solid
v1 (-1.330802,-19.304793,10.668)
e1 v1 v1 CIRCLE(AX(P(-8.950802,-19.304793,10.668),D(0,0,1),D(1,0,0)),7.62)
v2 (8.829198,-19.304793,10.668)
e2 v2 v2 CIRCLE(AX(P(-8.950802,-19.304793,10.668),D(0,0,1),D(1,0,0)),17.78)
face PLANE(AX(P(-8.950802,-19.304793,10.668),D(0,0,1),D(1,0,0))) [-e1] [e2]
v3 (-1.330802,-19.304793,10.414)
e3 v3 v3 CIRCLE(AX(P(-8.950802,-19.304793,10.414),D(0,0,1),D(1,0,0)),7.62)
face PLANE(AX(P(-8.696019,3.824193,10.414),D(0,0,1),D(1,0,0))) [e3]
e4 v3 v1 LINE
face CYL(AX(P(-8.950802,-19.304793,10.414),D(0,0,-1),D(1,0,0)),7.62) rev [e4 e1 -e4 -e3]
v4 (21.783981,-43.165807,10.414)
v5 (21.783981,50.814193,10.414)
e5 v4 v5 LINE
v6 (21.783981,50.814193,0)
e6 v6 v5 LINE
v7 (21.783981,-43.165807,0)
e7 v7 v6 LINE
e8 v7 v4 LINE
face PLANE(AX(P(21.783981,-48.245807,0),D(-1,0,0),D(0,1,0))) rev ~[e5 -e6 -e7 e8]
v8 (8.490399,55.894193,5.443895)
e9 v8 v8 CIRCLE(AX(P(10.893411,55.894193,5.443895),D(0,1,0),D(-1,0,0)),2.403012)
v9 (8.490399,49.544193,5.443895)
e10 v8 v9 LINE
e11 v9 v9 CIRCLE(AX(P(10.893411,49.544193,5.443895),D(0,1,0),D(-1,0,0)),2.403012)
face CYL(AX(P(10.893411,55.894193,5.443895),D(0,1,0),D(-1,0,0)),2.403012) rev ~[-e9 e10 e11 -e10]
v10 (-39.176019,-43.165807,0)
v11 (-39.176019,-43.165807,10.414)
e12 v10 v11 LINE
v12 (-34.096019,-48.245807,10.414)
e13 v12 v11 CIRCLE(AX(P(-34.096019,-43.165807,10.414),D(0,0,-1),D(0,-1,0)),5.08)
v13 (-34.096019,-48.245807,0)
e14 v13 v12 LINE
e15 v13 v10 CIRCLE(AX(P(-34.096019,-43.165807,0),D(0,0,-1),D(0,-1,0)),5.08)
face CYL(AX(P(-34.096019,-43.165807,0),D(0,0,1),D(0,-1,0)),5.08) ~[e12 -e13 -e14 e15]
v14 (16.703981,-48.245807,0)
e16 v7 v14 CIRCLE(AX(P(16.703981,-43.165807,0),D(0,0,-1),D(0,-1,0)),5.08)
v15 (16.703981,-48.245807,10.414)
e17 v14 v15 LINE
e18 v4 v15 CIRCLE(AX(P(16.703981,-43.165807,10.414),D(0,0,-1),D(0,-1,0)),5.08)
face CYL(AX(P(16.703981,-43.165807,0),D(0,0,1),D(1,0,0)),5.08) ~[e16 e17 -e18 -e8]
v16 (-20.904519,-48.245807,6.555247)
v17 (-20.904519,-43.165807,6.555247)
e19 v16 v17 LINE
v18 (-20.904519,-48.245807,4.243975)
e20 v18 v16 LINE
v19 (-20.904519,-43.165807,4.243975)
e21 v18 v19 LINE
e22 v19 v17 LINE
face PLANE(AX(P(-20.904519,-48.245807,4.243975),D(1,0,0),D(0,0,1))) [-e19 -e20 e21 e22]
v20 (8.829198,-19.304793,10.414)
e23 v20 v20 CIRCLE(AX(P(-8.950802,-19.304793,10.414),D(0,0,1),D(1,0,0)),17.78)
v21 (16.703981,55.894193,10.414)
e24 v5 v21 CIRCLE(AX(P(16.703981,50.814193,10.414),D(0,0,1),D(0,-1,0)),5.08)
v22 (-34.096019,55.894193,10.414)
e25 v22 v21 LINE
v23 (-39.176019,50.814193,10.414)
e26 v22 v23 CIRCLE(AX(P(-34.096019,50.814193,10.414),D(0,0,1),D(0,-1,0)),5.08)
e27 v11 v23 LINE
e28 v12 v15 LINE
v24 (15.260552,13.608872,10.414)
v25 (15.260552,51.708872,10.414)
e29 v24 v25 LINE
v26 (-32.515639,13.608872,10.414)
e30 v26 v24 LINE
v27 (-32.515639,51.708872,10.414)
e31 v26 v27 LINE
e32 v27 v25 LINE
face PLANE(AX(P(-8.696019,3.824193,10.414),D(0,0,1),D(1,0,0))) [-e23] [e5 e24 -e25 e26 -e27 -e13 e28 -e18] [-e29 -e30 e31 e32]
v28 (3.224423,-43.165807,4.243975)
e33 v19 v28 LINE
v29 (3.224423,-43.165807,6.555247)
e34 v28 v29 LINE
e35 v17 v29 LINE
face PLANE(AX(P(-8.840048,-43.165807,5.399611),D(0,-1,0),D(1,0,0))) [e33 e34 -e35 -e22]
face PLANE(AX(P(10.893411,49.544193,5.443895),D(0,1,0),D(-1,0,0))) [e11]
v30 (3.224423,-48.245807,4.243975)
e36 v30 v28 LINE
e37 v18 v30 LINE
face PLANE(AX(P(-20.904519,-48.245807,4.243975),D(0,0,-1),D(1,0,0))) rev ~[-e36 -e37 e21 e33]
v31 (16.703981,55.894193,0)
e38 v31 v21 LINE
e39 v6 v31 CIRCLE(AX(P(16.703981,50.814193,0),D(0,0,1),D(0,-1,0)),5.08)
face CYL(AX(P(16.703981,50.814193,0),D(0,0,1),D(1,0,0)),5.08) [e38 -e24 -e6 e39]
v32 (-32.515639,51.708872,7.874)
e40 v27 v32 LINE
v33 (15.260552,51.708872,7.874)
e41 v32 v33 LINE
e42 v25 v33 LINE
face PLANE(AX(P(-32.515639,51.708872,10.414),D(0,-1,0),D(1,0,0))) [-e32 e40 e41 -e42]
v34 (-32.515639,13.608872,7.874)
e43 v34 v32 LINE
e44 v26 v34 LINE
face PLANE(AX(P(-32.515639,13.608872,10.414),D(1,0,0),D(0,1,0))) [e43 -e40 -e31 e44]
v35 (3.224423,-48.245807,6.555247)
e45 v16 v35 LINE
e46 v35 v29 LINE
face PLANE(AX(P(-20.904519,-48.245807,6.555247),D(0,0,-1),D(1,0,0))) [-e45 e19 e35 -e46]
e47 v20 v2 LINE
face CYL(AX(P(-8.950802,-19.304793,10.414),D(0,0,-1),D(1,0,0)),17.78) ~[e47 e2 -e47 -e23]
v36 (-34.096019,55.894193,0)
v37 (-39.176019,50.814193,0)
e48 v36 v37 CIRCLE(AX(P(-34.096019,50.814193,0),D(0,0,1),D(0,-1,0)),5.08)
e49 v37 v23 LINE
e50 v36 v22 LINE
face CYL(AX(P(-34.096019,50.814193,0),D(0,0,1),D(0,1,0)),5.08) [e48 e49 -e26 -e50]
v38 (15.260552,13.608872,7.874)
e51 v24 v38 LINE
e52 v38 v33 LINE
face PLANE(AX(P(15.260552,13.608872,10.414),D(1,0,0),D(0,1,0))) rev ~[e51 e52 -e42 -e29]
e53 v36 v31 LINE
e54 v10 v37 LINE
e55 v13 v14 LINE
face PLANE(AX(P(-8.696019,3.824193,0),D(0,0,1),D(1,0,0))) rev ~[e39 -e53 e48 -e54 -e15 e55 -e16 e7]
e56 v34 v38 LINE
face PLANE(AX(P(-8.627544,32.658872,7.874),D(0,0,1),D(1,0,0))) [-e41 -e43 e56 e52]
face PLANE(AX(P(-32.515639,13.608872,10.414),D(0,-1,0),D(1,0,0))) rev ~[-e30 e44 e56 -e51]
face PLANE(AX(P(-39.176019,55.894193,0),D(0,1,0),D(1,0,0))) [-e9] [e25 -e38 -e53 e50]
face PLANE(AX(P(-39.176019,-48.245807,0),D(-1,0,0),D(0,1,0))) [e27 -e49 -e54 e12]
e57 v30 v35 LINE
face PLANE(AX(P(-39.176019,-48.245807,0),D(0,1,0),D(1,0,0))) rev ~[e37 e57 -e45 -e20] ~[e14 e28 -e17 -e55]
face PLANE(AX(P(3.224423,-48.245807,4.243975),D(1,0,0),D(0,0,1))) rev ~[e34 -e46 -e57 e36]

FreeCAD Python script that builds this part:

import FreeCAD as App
import Part
import Sketcher

V = App.Vector
Q = App.Units.Quantity


def edges_at(feature, points):
    """Names of the edges that pass closest to the given points."""
    edges = feature.Shape.Edges
    near = lambda p: min(range(len(edges)), key=lambda i: edges[i].distToShape(Part.Vertex(*p))[0])
    return sorted({f"Edge{near(p) + 1}" for p in points})


def add_polygon(sketch, points):
    """Adds a closed chain of lines whose ends are joined by coincident constraints."""
    first, n = sketch.GeometryCount, len(points)
    for a, b in zip(points, points[1:] + points[:1]):
        sketch.addGeometry(Part.LineSegment(App.Vector(*a, 0), App.Vector(*b, 0)), False)
    for i in range(n):
        sketch.addConstraint(Sketcher.Constraint("Coincident", first + i, 2, first + (i + 1) % n, 1))

doc = App.newDocument("Part")
body = doc.addObject("PartDesign::Body", "Body")

# Sketch on XY plane
sketch1 = body.newObject("Sketcher::SketchObject", "Sketch")
sketch1.AttachmentSupport = (doc.getObject("XY_Plane"), [""])
sketch1.MapMode = "FlatFace"
add_polygon(sketch1, [(-39, 56), (-39, -48), (22, -48), (22, 56)])  # lines 0-3
sketch1.addConstraint([
    Sketcher.Constraint("Vertical", 0),
    Sketcher.Constraint("Horizontal", 1),
    Sketcher.Constraint("Vertical", 2),
    Sketcher.Constraint("Horizontal", 3),
    Sketcher.Constraint("DistanceX", 1, 1, 1, 2, Q("2.4 in")),
    Sketcher.Constraint("DistanceY", 0, 2, 0, 1, Q("4.1 in")),
    Sketcher.Constraint("DistanceX", 0, 2, -1, 1, Q("39.176019 mm")),
    Sketcher.Constraint("DistanceY", 0, 2, -1, 1, Q("48.245807 mm")),
])
pad1 = body.newObject("PartDesign::Pad", "Pad")
pad1.Profile = sketch1
pad1.Length = Q("0.41 in")
doc.recompute()

fillet = body.newObject("PartDesign::Fillet", "Fillet")
fillet.Base = (pad1, edges_at(pad1, [(21.784, 55.894, 5.207)]))
fillet.Radius = Q("0.2 in")
doc.recompute()

fillet2 = body.newObject("PartDesign::Fillet", "Fillet001")
fillet2.Base = (fillet, edges_at(fillet, [(-39.176, 55.894, 5.207)]))
fillet2.Radius = Q("0.2 in")
doc.recompute()

fillet3 = body.newObject("PartDesign::Fillet", "Fillet002")
fillet3.Base = (fillet2, edges_at(fillet2, [(21.784, -48.246, 5.207)]))
fillet3.Radius = Q("0.2 in")
doc.recompute()

fillet4 = body.newObject("PartDesign::Fillet", "Fillet003")
fillet4.Base = (fillet3, edges_at(fillet3, [(-39.176, -48.246, 5.207)]))
fillet4.Radius = Q("0.2 in")

# Sketch on XY plane
sketch2 = body.newObject("Sketcher::SketchObject", "Sketch001")
sketch2.AttachmentSupport = (doc.getObject("XY_Plane"), [""])
sketch2.MapMode = "FlatFace"
sketch2.AttachmentOffset = App.Placement(V(0, 0, 0.41 * 25.4), App.Rotation())
add_polygon(sketch2, [(-33, 52), (-33, 14), (15, 14), (15, 52)])  # lines 0-3
sketch2.addConstraint([
    Sketcher.Constraint("Vertical", 0),
    Sketcher.Constraint("Horizontal", 1),
    Sketcher.Constraint("Vertical", 2),
    Sketcher.Constraint("Horizontal", 3),
    Sketcher.Constraint("DistanceY", 0, 2, 0, 1, Q("1.5 in")),
    Sketcher.Constraint("DistanceX", 1, 1, 1, 2, Q("47.776191 mm")),
    Sketcher.Constraint("DistanceX", 0, 2, -1, 1, Q("32.515639 mm")),
    Sketcher.Constraint("DistanceY", -1, 1, 0, 2, Q("13.608872 mm")),
])
pocket1 = body.newObject("PartDesign::Pocket", "Pocket")
pocket1.Profile = sketch2
pocket1.Length = Q("0.1 in")

# Sketch on XY plane
sketch3 = body.newObject("Sketcher::SketchObject", "Sketch002")
sketch3.AttachmentSupport = (doc.getObject("XY_Plane"), [""])
sketch3.MapMode = "FlatFace"
sketch3.AttachmentOffset = App.Placement(V(0, 0, 0.41 * 25.4), App.Rotation())
sketch3.addGeometry([
    Part.Circle(V(-9, -19, 0), V(0, 0, 1), 18),
    Part.Circle(V(-9, -19, 0), V(0, 0, 1), 8),
], False)
sketch3.addConstraint([
    Sketcher.Constraint("Coincident", 1, 3, 0, 3),
    Sketcher.Constraint("Diameter", 0, Q("1.4 in")),
    Sketcher.Constraint("Diameter", 1, Q("0.6 in")),
    Sketcher.Constraint("DistanceX", 0, 3, -1, 1, Q("8.950802 mm")),
    Sketcher.Constraint("DistanceY", 0, 3, -1, 1, Q("19.304793 mm")),
])
pad2 = body.newObject("PartDesign::Pad", "Pad001")
pad2.Profile = sketch3
pad2.Length = Q("0.01 in")

# Sketch on XZ plane
sketch4 = body.newObject("Sketcher::SketchObject", "Sketch003")
sketch4.AttachmentSupport = (doc.getObject("XZ_Plane"), [""])
sketch4.MapMode = "FlatFace"
sketch4.AttachmentOffset = App.Placement(V(0, 0, -55.894193), App.Rotation())
sketch4.addGeometry(Part.Circle(V(10.9, 5.4, 0), V(0, 0, 1), 2.4), False)
sketch4.addConstraint([
    Sketcher.Constraint("Diameter", 0, Q("4.806024 mm")),
    Sketcher.Constraint("DistanceX", -1, 1, 0, 3, Q("10.893411 mm")),
    Sketcher.Constraint("DistanceY", -1, 1, 0, 3, Q("5.443895 mm")),
])
pocket2 = body.newObject("PartDesign::Pocket", "Pocket001")
pocket2.Profile = sketch4
pocket2.Length = Q("0.25 in")
pocket2.Reversed = True

# Sketch on XZ plane
sketch5 = body.newObject("Sketcher::SketchObject", "Sketch004")
sketch5.AttachmentSupport = (doc.getObject("XZ_Plane"), [""])
sketch5.MapMode = "FlatFace"
sketch5.AttachmentOffset = App.Placement(V(0, 0, 48.245807), App.Rotation())
add_polygon(sketch5, [(-20.9, 6.6), (-20.9, 4.2), (3.2, 4.2), (3.2, 6.6)])  # lines 0-3
sketch5.addConstraint([
    Sketcher.Constraint("Vertical", 0),
    Sketcher.Constraint("Horizontal", 1),
    Sketcher.Constraint("Vertical", 2),
    Sketcher.Constraint("Horizontal", 3),
    Sketcher.Constraint("DistanceY", 0, 2, 0, 1, Q("2.311272 mm")),
    Sketcher.Constraint("DistanceX", 1, 1, 1, 2, Q("24.128942 mm")),
    Sketcher.Constraint("DistanceX", 0, 2, -1, 1, Q("20.904519 mm")),
    Sketcher.Constraint("DistanceY", -1, 1, 0, 2, Q("4.243975 mm")),
])
pocket3 = body.newObject("PartDesign::Pocket", "Pocket002")
pocket3.Profile = sketch5
pocket3.Length = Q("0.2 in")

doc.recompute()
